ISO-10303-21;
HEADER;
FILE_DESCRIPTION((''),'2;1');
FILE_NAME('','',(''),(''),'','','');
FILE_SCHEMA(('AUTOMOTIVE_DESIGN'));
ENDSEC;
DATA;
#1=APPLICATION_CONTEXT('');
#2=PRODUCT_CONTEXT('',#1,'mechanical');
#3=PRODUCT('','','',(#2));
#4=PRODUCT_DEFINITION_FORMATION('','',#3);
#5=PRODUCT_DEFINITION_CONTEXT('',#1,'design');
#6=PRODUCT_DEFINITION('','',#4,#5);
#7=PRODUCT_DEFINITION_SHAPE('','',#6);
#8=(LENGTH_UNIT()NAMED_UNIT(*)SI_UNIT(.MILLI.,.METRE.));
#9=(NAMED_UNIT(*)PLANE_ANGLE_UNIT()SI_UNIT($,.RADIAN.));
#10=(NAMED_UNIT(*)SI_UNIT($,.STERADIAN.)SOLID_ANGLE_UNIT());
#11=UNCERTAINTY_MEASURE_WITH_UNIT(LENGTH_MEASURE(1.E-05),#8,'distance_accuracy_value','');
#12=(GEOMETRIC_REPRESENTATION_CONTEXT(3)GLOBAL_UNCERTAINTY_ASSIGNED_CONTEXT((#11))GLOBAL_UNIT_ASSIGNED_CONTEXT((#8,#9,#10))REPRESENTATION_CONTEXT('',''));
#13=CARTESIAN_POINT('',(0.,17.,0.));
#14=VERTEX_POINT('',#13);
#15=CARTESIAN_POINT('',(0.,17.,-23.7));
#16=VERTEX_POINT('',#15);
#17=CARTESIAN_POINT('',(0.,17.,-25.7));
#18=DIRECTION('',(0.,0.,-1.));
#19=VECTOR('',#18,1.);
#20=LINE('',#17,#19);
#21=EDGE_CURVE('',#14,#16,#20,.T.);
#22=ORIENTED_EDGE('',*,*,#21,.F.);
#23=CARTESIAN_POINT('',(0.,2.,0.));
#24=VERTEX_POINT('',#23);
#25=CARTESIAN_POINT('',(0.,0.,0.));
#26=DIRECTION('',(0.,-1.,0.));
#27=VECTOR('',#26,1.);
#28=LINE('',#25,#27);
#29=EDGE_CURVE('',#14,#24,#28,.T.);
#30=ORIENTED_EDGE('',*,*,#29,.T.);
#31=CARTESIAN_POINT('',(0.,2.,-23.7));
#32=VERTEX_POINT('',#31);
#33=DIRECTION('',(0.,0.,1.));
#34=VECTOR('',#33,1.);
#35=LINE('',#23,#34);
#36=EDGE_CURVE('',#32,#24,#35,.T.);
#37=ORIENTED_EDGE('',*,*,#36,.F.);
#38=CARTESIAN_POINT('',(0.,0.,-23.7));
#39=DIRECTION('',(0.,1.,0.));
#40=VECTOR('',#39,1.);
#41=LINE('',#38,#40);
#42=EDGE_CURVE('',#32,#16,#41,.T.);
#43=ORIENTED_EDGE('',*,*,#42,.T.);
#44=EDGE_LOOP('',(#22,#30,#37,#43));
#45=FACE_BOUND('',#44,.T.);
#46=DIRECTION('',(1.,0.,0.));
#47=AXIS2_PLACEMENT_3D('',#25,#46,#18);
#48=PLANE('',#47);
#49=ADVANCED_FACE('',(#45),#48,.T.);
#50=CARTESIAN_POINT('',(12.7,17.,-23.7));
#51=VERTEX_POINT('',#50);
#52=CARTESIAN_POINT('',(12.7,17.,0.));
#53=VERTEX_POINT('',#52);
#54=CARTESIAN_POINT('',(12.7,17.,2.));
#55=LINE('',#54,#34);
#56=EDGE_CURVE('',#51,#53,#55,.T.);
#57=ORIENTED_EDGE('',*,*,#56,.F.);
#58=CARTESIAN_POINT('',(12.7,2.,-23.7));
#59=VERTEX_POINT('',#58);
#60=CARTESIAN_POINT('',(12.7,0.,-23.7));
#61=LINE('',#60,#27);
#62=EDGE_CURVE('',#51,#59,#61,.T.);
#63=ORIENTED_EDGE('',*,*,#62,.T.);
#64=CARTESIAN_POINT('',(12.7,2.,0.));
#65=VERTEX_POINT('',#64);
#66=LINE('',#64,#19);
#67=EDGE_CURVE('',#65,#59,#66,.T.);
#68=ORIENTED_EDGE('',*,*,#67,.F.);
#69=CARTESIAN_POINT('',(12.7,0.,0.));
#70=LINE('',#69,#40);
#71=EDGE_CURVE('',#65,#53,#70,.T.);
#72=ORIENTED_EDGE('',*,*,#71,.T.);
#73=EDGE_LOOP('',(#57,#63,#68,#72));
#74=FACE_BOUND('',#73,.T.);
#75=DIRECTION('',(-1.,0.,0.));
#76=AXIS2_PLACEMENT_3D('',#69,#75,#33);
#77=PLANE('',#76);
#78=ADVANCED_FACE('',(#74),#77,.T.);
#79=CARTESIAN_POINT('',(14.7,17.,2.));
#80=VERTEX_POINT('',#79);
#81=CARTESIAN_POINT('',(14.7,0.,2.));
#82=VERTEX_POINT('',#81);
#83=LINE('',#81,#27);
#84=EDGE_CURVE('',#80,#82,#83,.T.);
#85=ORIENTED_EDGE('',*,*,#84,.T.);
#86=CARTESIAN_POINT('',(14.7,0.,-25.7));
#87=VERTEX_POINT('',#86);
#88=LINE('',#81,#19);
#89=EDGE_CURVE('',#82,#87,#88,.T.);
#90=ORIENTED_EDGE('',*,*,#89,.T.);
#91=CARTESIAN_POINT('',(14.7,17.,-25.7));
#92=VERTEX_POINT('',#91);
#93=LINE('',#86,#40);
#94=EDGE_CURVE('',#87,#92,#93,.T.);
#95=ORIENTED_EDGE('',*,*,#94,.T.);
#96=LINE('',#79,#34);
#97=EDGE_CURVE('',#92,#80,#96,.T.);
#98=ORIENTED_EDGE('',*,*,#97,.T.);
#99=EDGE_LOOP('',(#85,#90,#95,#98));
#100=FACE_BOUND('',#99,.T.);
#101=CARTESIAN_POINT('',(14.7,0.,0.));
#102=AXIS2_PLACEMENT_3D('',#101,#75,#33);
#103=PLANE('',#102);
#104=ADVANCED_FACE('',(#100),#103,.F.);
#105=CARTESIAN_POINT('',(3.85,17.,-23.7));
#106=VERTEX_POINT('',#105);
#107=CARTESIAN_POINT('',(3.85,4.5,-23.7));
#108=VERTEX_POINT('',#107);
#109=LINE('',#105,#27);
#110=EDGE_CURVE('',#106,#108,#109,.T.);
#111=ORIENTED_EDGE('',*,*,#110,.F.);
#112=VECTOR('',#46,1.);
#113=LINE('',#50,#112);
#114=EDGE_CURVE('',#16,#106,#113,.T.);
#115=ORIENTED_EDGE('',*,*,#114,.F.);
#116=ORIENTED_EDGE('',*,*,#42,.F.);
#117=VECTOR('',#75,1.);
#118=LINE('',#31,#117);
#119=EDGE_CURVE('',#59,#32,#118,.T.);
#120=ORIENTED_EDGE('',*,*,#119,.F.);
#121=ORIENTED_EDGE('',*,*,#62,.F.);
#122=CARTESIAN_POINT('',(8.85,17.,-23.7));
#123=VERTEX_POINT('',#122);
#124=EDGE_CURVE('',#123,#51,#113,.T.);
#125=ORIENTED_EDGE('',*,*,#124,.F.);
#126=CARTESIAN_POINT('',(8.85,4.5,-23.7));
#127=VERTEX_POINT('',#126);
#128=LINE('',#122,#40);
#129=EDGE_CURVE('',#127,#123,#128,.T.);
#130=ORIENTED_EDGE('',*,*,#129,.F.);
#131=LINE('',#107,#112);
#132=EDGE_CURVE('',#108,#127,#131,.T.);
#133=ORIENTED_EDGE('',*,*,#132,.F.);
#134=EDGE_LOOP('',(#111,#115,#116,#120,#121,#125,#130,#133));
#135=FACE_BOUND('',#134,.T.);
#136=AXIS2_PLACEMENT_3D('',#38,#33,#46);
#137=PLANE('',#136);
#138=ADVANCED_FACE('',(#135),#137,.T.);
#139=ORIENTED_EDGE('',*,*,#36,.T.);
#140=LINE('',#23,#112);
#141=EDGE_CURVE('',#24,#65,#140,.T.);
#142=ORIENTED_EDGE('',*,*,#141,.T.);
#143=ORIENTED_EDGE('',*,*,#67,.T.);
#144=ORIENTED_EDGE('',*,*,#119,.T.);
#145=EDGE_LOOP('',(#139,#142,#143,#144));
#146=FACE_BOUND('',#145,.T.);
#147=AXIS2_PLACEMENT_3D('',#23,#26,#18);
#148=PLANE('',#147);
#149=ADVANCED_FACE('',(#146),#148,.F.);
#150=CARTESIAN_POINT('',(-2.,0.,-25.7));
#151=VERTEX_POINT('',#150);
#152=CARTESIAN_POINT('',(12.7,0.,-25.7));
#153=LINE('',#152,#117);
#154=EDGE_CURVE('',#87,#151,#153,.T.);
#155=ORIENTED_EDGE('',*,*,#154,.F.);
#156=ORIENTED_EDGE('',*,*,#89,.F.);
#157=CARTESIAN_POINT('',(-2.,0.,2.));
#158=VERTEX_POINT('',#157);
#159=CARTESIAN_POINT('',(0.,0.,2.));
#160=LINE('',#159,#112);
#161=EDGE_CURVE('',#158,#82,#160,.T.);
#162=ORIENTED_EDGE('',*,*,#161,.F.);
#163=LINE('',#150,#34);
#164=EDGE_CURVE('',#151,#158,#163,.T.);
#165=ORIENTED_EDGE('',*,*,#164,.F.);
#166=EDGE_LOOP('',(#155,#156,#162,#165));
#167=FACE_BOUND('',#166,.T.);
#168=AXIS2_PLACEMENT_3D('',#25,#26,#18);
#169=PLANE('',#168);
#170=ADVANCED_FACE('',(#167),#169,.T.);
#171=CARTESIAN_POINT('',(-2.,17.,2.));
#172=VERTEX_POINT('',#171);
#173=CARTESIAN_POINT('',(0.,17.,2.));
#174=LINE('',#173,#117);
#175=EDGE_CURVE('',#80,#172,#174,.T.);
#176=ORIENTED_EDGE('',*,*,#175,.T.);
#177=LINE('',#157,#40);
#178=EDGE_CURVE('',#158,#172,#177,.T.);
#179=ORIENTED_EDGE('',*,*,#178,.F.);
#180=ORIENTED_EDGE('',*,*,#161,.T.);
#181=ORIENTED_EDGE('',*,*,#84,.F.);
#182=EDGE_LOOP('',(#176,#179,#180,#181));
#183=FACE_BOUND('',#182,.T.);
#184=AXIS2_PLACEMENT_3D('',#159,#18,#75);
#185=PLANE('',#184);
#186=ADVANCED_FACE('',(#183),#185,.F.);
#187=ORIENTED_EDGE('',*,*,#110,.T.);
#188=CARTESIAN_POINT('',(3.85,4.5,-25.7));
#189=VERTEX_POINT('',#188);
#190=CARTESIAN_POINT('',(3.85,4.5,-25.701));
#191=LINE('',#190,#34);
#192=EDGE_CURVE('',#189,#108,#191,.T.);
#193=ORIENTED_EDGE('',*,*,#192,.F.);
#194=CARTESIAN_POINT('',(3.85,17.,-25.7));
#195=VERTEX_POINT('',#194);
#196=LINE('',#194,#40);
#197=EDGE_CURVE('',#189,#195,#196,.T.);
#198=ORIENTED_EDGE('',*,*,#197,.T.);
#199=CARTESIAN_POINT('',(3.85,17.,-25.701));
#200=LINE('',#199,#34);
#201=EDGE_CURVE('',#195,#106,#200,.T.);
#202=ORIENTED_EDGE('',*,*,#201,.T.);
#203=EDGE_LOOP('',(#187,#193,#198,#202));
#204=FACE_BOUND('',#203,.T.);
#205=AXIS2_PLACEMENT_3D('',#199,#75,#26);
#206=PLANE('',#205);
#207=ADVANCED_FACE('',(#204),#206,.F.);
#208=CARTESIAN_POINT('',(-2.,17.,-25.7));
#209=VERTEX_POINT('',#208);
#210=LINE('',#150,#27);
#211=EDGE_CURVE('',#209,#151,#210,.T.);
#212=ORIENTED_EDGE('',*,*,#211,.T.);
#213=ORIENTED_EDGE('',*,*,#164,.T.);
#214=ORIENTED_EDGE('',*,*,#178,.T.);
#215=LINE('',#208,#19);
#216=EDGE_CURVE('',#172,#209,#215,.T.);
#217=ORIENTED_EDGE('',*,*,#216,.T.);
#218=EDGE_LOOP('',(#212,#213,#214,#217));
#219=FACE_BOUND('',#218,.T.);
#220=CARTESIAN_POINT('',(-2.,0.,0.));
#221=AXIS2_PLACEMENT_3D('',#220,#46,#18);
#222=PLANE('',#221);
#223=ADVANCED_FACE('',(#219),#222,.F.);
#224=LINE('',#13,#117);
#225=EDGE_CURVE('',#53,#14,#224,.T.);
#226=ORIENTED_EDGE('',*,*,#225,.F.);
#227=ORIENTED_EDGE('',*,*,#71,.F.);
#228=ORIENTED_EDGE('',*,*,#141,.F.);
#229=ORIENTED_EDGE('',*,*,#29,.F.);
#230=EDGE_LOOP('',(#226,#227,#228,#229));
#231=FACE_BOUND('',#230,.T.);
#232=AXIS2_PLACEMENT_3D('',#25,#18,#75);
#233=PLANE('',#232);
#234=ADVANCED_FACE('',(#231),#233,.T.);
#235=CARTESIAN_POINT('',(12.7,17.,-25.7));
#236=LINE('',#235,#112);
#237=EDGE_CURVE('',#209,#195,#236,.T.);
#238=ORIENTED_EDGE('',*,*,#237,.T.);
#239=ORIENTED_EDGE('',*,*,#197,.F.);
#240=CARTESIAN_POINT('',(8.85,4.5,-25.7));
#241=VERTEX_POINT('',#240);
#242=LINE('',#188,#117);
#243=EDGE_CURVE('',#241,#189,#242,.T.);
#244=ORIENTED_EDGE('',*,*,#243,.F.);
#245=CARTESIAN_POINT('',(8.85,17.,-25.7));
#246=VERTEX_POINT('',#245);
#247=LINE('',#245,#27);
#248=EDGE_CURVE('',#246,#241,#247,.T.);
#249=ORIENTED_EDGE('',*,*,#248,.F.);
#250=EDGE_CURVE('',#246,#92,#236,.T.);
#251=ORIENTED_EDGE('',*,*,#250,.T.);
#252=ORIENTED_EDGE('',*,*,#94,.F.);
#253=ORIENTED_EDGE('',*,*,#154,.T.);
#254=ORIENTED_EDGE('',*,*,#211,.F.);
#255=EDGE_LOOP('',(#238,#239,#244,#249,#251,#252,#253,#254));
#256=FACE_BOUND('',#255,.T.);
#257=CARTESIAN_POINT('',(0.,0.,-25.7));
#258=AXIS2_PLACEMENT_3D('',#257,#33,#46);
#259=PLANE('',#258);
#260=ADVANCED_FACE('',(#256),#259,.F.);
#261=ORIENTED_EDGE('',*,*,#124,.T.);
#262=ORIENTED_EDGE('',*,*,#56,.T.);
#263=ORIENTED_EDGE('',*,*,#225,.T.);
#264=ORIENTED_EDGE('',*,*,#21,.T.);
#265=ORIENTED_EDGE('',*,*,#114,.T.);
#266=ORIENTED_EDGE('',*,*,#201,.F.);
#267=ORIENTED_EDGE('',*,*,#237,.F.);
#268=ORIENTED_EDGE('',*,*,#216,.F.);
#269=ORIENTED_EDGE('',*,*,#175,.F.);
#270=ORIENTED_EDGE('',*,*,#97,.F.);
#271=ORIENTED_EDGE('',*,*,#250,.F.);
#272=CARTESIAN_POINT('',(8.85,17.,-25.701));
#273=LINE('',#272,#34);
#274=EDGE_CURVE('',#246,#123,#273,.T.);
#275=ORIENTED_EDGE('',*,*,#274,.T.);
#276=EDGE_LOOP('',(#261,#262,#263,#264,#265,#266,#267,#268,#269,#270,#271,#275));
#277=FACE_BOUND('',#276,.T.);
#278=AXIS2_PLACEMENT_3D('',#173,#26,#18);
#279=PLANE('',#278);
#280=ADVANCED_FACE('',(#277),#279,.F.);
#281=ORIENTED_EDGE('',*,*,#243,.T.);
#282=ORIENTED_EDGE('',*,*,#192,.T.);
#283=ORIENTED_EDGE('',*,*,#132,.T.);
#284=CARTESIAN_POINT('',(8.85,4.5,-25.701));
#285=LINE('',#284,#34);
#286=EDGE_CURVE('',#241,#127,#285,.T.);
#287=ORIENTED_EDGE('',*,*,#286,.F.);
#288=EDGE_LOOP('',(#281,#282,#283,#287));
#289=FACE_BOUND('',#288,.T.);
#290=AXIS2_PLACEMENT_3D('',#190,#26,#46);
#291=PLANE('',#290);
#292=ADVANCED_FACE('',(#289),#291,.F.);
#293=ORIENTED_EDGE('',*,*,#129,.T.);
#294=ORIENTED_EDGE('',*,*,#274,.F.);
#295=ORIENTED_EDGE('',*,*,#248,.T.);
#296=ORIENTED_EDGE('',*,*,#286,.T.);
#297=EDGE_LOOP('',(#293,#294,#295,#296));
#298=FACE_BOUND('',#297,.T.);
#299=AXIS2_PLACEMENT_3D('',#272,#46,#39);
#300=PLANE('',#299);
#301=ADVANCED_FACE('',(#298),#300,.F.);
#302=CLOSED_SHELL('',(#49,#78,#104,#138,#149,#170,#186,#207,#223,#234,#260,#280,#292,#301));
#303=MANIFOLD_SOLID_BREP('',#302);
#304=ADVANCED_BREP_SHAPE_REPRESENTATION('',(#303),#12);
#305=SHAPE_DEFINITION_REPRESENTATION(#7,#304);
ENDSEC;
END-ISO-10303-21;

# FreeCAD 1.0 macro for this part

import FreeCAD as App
import Part
import Sketcher


def add_polygon(sketch, points):
    """Adds a closed chain of lines whose ends are joined by coincident constraints."""
    first, n = sketch.GeometryCount, len(points)
    for a, b in zip(points, points[1:] + points[:1]):
        sketch.addGeometry(Part.LineSegment(App.Vector(*a, 0), App.Vector(*b, 0)), False)
    for i in range(n):
        sketch.addConstraint(Sketcher.Constraint("Coincident", first + i, 2, first + (i + 1) % n, 1))

doc = App.newDocument("Part")
body = doc.addObject("PartDesign::Body", "Body")

# Sketch on XZ plane
sketch1 = doc.addObject("Sketcher::SketchObject", "Sketch")
body.addObject(sketch1)
sketch1.AttachmentSupport = (doc.XZ_Plane, [""])
sketch1.MapMode = "FlatFace"
add_polygon(sketch1, [(0, -24), (0, 0), (13, 0), (13, -24)])  # lines 0-3
sketch1.addConstraint([
    Sketcher.Constraint("Vertical", 0),
    Sketcher.Constraint("Horizontal", 1),
    Sketcher.Constraint("Vertical", 2),
    Sketcher.Constraint("Horizontal", 3),
    Sketcher.Constraint("Coincident", 0, 2, -1, 1),
    Sketcher.Constraint("DistanceX", 1, 1, 1, 2, 12.7),
    Sketcher.Constraint("DistanceY", 0, 1, 0, 2, 23.7),
])
pad1 = doc.addObject("PartDesign::Pad", "Pad")
body.addObject(pad1)
pad1.Profile = sketch1
pad1.Length = 2
pad1.Reversed = True

# Sketch on XY plane
sketch2 = doc.addObject("Sketcher::SketchObject", "Sketch001")
body.addObject(sketch2)
sketch2.AttachmentSupport = (doc.XY_Plane, [""])
sketch2.MapMode = "FlatFace"
add_polygon(sketch2, [(0, 17), (0, 0), (13, 0), (13, 17)])  # lines 0-3
sketch2.addConstraint([
    Sketcher.Constraint("Vertical", 0),
    Sketcher.Constraint("Horizontal", 1),
    Sketcher.Constraint("Vertical", 2),
    Sketcher.Constraint("Horizontal", 3),
    Sketcher.Constraint("Coincident", 0, 2, -1, 1),
    Sketcher.Constraint("DistanceY", 0, 2, 0, 1, 17.0),
    Sketcher.Constraint("DistanceX", 1, 1, 1, 2, 12.7),
])
pad2 = doc.addObject("PartDesign::Pad", "Pad001")
body.addObject(pad2)
pad2.Profile = sketch2
pad2.Length = 2

# Sketch on XY plane
sketch3 = doc.addObject("Sketcher::SketchObject", "Sketch002")
body.addObject(sketch3)
sketch3.AttachmentSupport = (doc.XY_Plane, [""])
sketch3.MapMode = "FlatFace"
sketch3.AttachmentOffset = App.Placement(App.Vector(0, 0, -23.7), App.Rotation())
add_polygon(sketch3, [(13, 17), (13, 0), (0, 0), (0, 17)])  # lines 0-3
sketch3.addConstraint([
    Sketcher.Constraint("Vertical", 0),
    Sketcher.Constraint("Horizontal", 1),
    Sketcher.Constraint("Vertical", 2),
    Sketcher.Constraint("Horizontal", 3),
    Sketcher.Constraint("Coincident", 1, 2, -1, 1),
    Sketcher.Constraint("DistanceY", 0, 2, 0, 1, 17.0),
    Sketcher.Constraint("DistanceX", 1, 2, 1, 1, 12.7),
])
pad3 = doc.addObject("PartDesign::Pad", "Pad002")
body.addObject(pad3)
pad3.Profile = sketch3
pad3.Length = 2
pad3.Reversed = True

# Sketch on YZ plane
sketch4 = doc.addObject("Sketcher::SketchObject", "Sketch003")
body.addObject(sketch4)
sketch4.AttachmentSupport = (doc.YZ_Plane, [""])
sketch4.MapMode = "FlatFace"
sketch4.AttachmentOffset = App.Placement(App.Vector(0, 0, 12.7), App.Rotation())
add_polygon(sketch4, [(17, 2), (0, 2), (0, -26), (17, -26)])  # lines 0-3
sketch4.addConstraint([
    Sketcher.Constraint("Horizontal", 0),
    Sketcher.Constraint("Vertical", 1),
    Sketcher.Constraint("Horizontal", 2),
    Sketcher.Constraint("Vertical", 3),
    Sketcher.Constraint("PointOnObject", 0, 2, -2),
    Sketcher.Constraint("DistanceX", 0, 2, 0, 1, 17.0),
    Sketcher.Constraint("DistanceY", 1, 2, 1, 1, 27.7),
    Sketcher.Constraint("DistanceY", -1, 1, 0, 2, 2.0),
])
pad4 = doc.addObject("PartDesign::Pad", "Pad003")
body.addObject(pad4)
pad4.Profile = sketch4
pad4.Length = 2

# Sketch on YZ plane
sketch5 = doc.addObject("Sketcher::SketchObject", "Sketch004")
body.addObject(sketch5)
sketch5.AttachmentSupport = (doc.YZ_Plane, [""])
sketch5.MapMode = "FlatFace"
add_polygon(sketch5, [(17, -26), (0, -26), (0, 2), (17, 2)])  # lines 0-3
sketch5.addConstraint([
    Sketcher.Constraint("Horizontal", 0),
    Sketcher.Constraint("Vertical", 1),
    Sketcher.Constraint("Horizontal", 2),
    Sketcher.Constraint("Vertical", 3),
    Sketcher.Constraint("PointOnObject", 0, 2, -2),
    Sketcher.Constraint("DistanceX", 0, 2, 0, 1, 17.0),
    Sketcher.Constraint("DistanceY", 1, 1, 1, 2, 27.7),
    Sketcher.Constraint("DistanceY", -1, 1, 1, 2, 2.0),
])
pad5 = doc.addObject("PartDesign::Pad", "Pad004")
body.addObject(pad5)
pad5.Profile = sketch5
pad5.Length = 2
pad5.Reversed = True

# Sketch on XY plane
sketch6 = doc.addObject("Sketcher::SketchObject", "Sketch005")
body.addObject(sketch6)
sketch6.AttachmentSupport = (doc.XY_Plane, [""])
sketch6.MapMode = "FlatFace"
sketch6.AttachmentOffset = App.Placement(App.Vector(0, 0, -23.7), App.Rotation())
add_polygon(sketch6, [(4, 17), (4, 4), (9, 4), (9, 17)])  # lines 0-3
sketch6.addConstraint([
    Sketcher.Constraint("Vertical", 0),
    Sketcher.Constraint("Horizontal", 1),
    Sketcher.Constraint("Vertical", 2),
    Sketcher.Constraint("Horizontal", 3),
    Sketcher.Constraint("DistanceX", 1, 1, 1, 2, 5.0),
    Sketcher.Constraint("DistanceY", 0, 2, 0, 1, 12.5),
    Sketcher.Constraint("DistanceY", -1, 1, 2, 2, 17.0),
    Sketcher.Constraint("DistanceX", -1, 1, 0, 2, 3.85),
])
pocket1 = doc.addObject("PartDesign::Pocket", "Pocket")
body.addObject(pocket1)
pocket1.Profile = sketch6
pocket1.Type = "UpToFirst"

doc.recompute()
